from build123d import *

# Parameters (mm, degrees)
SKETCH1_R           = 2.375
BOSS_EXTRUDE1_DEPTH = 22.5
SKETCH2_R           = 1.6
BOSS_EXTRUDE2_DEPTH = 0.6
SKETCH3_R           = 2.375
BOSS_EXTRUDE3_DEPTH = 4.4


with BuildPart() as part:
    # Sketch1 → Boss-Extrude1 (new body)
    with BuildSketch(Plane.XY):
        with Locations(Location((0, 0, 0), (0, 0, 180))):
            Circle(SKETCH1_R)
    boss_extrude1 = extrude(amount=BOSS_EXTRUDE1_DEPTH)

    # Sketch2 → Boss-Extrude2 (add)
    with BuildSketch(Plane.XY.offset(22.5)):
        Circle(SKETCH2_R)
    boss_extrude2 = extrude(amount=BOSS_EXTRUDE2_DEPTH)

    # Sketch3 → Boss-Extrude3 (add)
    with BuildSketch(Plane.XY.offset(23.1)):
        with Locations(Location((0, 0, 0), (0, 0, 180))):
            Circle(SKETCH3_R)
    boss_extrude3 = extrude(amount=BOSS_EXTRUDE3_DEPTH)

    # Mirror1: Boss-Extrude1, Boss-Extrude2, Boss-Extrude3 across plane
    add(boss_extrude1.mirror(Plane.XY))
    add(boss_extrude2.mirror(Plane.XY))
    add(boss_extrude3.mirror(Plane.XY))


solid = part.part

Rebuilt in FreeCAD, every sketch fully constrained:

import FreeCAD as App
import Part
import Sketcher

V = App.Vector
Q = App.Units.Quantity

doc = App.newDocument("Part")
params = doc.addObject("Spreadsheet::Sheet", "Params")
for row, (alias, value) in enumerate([
    ("sketch1_diameter", "4.75 mm"),
    ("pad1_length", "22.5 mm"),
    ("sketch2_diameter", "3.2 mm"),
    ("pad2_length", "0.6 mm"),
    ("sketch3_diameter", "4.75 mm"),
    ("pad3_length", "4.4 mm"),
], start=1):
    params.set(f"A{row}", alias)
    params.set(f"B{row}", "=" + value)
    params.setAlias(f"B{row}", alias)

body = doc.addObject("PartDesign::Body", "Body")

# Sketch on XY plane
sketch1 = body.newObject("Sketcher::SketchObject", "Sketch")
sketch1.AttachmentSupport = (doc.getObject("XY_Plane"), [""])
sketch1.MapMode = "FlatFace"
sketch1.addGeometry(Part.Circle(V(0, 0, 0), V(0, 0, 1), 2.4), False)
sketch1.addConstraint([
    Sketcher.Constraint("Coincident", 0, 3, -1, 1),
    Sketcher.Constraint("Diameter", 0, Q("4.75 mm")),
])
sketch1.setExpression("Constraints[1]", "Params.sketch1_diameter")
pad1 = body.newObject("PartDesign::Pad", "Pad")
pad1.Profile = sketch1
pad1.setExpression("Length", "Params.pad1_length")

# Sketch on XY plane
sketch2 = body.newObject("Sketcher::SketchObject", "Sketch001")
sketch2.AttachmentSupport = (doc.getObject("XY_Plane"), [""])
sketch2.MapMode = "FlatFace"
sketch2.AttachmentOffset = App.Placement(V(0, 0, 22.5), App.Rotation())
sketch2.addGeometry(Part.Circle(V(0, 0, 0), V(0, 0, 1), 1.6), False)
sketch2.addConstraint([
    Sketcher.Constraint("Coincident", 0, 3, -1, 1),
    Sketcher.Constraint("Diameter", 0, Q("3.2 mm")),
])
sketch2.setExpression("Constraints[1]", "Params.sketch2_diameter")
pad2 = body.newObject("PartDesign::Pad", "Pad001")
pad2.Profile = sketch2
pad2.setExpression("Length", "Params.pad2_length")

# Sketch on XY plane
sketch3 = body.newObject("Sketcher::SketchObject", "Sketch002")
sketch3.AttachmentSupport = (doc.getObject("XY_Plane"), [""])
sketch3.MapMode = "FlatFace"
sketch3.AttachmentOffset = App.Placement(V(0, 0, 23.1), App.Rotation())
sketch3.addGeometry(Part.Circle(V(0, 0, 0), V(0, 0, 1), 2.4), False)
sketch3.addConstraint([
    Sketcher.Constraint("Coincident", 0, 3, -1, 1),
    Sketcher.Constraint("Diameter", 0, Q("4.75 mm")),
])
sketch3.setExpression("Constraints[1]", "Params.sketch3_diameter")
pad3 = body.newObject("PartDesign::Pad", "Pad002")
pad3.Profile = sketch3
pad3.setExpression("Length", "Params.pad3_length")
doc.recompute()

mirrored = body.newObject("PartDesign::Mirrored", "Mirrored")
mirrored.Originals = [pad1, pad2, pad3]
mirrored.MirrorPlane = (doc.getObject("XY_Plane"), [""])
body.Tip = mirrored

doc.recompute()
